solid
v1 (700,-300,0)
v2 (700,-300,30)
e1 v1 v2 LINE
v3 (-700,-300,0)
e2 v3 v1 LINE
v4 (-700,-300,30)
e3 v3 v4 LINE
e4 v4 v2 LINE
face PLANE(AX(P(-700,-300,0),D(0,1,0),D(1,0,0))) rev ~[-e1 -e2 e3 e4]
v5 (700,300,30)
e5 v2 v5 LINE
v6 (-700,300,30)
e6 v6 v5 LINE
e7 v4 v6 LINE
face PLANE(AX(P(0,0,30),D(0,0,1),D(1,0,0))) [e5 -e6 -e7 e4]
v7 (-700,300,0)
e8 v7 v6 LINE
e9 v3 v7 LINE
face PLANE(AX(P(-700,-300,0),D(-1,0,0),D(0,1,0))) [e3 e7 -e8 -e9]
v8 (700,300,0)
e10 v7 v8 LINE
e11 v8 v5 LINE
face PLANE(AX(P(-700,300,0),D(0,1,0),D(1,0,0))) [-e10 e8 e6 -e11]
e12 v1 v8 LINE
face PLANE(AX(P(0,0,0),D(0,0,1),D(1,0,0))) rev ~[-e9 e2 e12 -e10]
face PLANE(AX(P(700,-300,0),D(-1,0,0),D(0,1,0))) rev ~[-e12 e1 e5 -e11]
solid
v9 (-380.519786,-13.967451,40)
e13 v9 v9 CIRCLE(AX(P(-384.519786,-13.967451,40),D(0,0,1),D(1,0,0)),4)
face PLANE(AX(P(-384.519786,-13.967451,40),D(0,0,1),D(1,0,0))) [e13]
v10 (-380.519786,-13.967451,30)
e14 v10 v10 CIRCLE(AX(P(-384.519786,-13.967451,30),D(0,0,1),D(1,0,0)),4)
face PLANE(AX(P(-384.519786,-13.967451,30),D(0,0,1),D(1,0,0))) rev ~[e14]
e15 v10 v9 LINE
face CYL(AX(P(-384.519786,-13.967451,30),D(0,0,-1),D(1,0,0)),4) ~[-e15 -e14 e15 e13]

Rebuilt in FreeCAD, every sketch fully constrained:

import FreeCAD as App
import Part
import Sketcher
from FreeCAD import Vector


def add_polygon(sketch, points):
    """Adds a closed chain of lines whose ends are joined by coincident constraints."""
    first, n = sketch.GeometryCount, len(points)
    for a, b in zip(points, points[1:] + points[:1]):
        sketch.addGeometry(Part.LineSegment(App.Vector(*a, 0), App.Vector(*b, 0)), False)
    for i in range(n):
        sketch.addConstraint(Sketcher.Constraint("Coincident", first + i, 2, first + (i + 1) % n, 1))

doc = App.newDocument("Part")
body = doc.addObject("PartDesign::Body", "Body")

sketch1 = doc.addObject("Sketcher::SketchObject", "Sketch")
body.addObject(sketch1)
sketch1.AttachmentSupport = (doc.XY_Plane, [""])
sketch1.MapMode = "FlatFace"
add_polygon(sketch1, [(-700, 300), (-700, -300), (700, -300), (700, 300)])
sketch1.addConstraint(Sketcher.Constraint("Vertical", 0))
sketch1.addConstraint(Sketcher.Constraint("Horizontal", 1))
sketch1.addConstraint(Sketcher.Constraint("Vertical", 2))
sketch1.addConstraint(Sketcher.Constraint("Horizontal", 3))
sketch1.addConstraint(Sketcher.Constraint("Symmetric", 0, 2, 2, 2, -1, 1))
sketch1.addConstraint(Sketcher.Constraint("DistanceX", 1, 1, 1, 2, 1400.0))
sketch1.addConstraint(Sketcher.Constraint("DistanceY", 0, 2, 0, 1, 600.0))
pad1 = doc.addObject("PartDesign::Pad", "Pad")
body.addObject(pad1)
pad1.Profile = sketch1
pad1.Length = 30
body2 = doc.addObject("PartDesign::Body", "Body001")

sketch2 = doc.addObject("Sketcher::SketchObject", "Sketch001")
body2.addObject(sketch2)
sketch2.AttachmentSupport = (doc.getObject("XY_Plane001"), [""])
sketch2.MapMode = "FlatFace"
sketch2.AttachmentOffset = App.Placement(Vector(0, 0, 30), App.Rotation())
sketch2.addGeometry(Part.Circle(Vector(-384.5, -14, 0), Vector(0, 0, 1), 4), False)
sketch2.addConstraint(Sketcher.Constraint("Diameter", 0, 8.0))
sketch2.addConstraint(Sketcher.Constraint("DistanceY", 0, 3, -1, 1, 13.967451))
sketch2.addConstraint(Sketcher.Constraint("DistanceX", 0, 3, -1, 1, 384.519786))
pad2 = doc.addObject("PartDesign::Pad", "Pad001")
body2.addObject(pad2)
pad2.Profile = sketch2
pad2.Length = 10

doc.recompute()
